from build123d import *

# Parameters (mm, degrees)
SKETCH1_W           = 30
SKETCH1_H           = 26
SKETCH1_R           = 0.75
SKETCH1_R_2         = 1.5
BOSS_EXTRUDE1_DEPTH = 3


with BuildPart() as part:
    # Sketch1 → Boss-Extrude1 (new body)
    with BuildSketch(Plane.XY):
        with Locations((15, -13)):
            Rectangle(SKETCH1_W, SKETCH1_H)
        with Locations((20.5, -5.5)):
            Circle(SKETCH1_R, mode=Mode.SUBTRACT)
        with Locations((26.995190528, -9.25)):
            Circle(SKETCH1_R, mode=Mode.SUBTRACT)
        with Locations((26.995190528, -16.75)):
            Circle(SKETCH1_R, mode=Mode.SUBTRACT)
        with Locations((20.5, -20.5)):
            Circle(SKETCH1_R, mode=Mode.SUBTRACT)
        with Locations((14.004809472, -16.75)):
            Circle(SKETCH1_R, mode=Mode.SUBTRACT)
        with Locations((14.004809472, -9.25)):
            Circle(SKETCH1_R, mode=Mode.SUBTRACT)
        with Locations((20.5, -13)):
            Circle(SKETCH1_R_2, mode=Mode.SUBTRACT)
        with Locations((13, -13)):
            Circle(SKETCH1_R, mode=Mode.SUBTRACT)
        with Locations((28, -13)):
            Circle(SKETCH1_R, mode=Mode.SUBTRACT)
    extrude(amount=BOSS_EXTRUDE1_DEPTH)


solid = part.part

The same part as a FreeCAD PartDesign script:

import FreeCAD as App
import Part
import Sketcher

V = App.Vector

doc = App.newDocument("Part")
body = doc.addObject("PartDesign::Body", "Body")

# Sketch on XY plane
sketch1 = body.newObject("Sketcher::SketchObject", "Sketch")
sketch1.AttachmentSupport = (doc.getObject("XY_Plane"), [""])
sketch1.MapMode = "FlatFace"
sketch1.addGeometry([
    Part.LineSegment(V(0, 0, 0), V(0, -26, 0)),  # 0
    Part.LineSegment(V(0, -26, 0), V(30, -26, 0)),  # 1
    Part.LineSegment(V(30, -26, 0), V(30, 0, 0)),  # 2
    Part.LineSegment(V(30, 0, 0), V(0, 0, 0)),  # 3
    Part.Circle(V(14, -16.8, 0), V(0, 0, 1), 0.8),  # 4
    Part.Circle(V(20.5, -20.5, 0), V(0, 0, 1), 0.8),  # 5
    Part.Circle(V(27, -16.8, 0), V(0, 0, 1), 0.8),  # 6
    Part.Circle(V(13, -13, 0), V(0, 0, 1), 0.8),  # 7
    Part.Circle(V(14, -9.2, 0), V(0, 0, 1), 0.8),  # 8
    Part.Circle(V(20.5, -13, 0), V(0, 0, 1), 1.5),  # 9
    Part.Circle(V(28, -13, 0), V(0, 0, 1), 0.8),  # 10
    Part.Circle(V(27, -9.2, 0), V(0, 0, 1), 0.8),  # 11
    Part.Circle(V(20.5, -5.5, 0), V(0, 0, 1), 0.8),  # 12
], False)
sketch1.addConstraint([
    Sketcher.Constraint("Coincident", 0, 2, 1, 1),
    Sketcher.Constraint("Coincident", 1, 2, 2, 1),
    Sketcher.Constraint("Coincident", 2, 2, 3, 1),
    Sketcher.Constraint("Coincident", 3, 2, 0, 1),
    Sketcher.Constraint("Vertical", 0),
    Sketcher.Constraint("Horizontal", 1),
    Sketcher.Constraint("Vertical", 2),
    Sketcher.Constraint("Horizontal", 3),
    Sketcher.Constraint("Coincident", 3, 2, -1, 1),
    Sketcher.Constraint("Equal", 4, 5),
    Sketcher.Constraint("Equal", 5, 6),
    Sketcher.Constraint("Equal", 6, 7),
    Sketcher.Constraint("Equal", 7, 8),
    Sketcher.Constraint("Equal", 8, 10),
    Sketcher.Constraint("Equal", 10, 11),
    Sketcher.Constraint("Equal", 11, 12),
    Sketcher.Constraint("Horizontal", 4, 3, 6, 3),
    Sketcher.Constraint("Horizontal", 7, 3, 9, 3),
    Sketcher.Constraint("Horizontal", 9, 3, 10, 3),
    Sketcher.Constraint("Horizontal", 8, 3, 11, 3),
    Sketcher.Constraint("Vertical", 4, 3, 8, 3),
    Sketcher.Constraint("Vertical", 5, 3, 9, 3),
    Sketcher.Constraint("Vertical", 6, 3, 11, 3),
    Sketcher.Constraint("Vertical", 9, 3, 12, 3),
    Sketcher.Constraint("Diameter", 9, 3.0),
    Sketcher.Constraint("Diameter", 4, 1.5),
    Sketcher.Constraint("DistanceX", 1, 1, 1, 2, 30.0),
    Sketcher.Constraint("DistanceY", 0, 2, 0, 1, 26.0),
    Sketcher.Constraint("DistanceX", -1, 1, 7, 3, 13.0),
    Sketcher.Constraint("DistanceY", 7, 3, -1, 1, 13.0),
    Sketcher.Constraint("DistanceX", -1, 1, 10, 3, 28.0),
    Sketcher.Constraint("DistanceX", -1, 1, 5, 3, 20.5),
    Sketcher.Constraint("DistanceY", 5, 3, -1, 1, 20.5),
    Sketcher.Constraint("DistanceY", 12, 3, -1, 1, 5.5),
    Sketcher.Constraint("DistanceY", 4, 3, 8, 3, 7.5),
    Sketcher.Constraint("DistanceY", 4, 3, -1, 1, 16.75),
    Sketcher.Constraint("DistanceX", -1, 1, 4, 3, 14.004809),
    Sketcher.Constraint("DistanceX", -1, 1, 6, 3, 26.995191),
])
pad1 = body.newObject("PartDesign::Pad", "Pad")
pad1.Profile = sketch1
pad1.Length = 3

doc.recompute()
